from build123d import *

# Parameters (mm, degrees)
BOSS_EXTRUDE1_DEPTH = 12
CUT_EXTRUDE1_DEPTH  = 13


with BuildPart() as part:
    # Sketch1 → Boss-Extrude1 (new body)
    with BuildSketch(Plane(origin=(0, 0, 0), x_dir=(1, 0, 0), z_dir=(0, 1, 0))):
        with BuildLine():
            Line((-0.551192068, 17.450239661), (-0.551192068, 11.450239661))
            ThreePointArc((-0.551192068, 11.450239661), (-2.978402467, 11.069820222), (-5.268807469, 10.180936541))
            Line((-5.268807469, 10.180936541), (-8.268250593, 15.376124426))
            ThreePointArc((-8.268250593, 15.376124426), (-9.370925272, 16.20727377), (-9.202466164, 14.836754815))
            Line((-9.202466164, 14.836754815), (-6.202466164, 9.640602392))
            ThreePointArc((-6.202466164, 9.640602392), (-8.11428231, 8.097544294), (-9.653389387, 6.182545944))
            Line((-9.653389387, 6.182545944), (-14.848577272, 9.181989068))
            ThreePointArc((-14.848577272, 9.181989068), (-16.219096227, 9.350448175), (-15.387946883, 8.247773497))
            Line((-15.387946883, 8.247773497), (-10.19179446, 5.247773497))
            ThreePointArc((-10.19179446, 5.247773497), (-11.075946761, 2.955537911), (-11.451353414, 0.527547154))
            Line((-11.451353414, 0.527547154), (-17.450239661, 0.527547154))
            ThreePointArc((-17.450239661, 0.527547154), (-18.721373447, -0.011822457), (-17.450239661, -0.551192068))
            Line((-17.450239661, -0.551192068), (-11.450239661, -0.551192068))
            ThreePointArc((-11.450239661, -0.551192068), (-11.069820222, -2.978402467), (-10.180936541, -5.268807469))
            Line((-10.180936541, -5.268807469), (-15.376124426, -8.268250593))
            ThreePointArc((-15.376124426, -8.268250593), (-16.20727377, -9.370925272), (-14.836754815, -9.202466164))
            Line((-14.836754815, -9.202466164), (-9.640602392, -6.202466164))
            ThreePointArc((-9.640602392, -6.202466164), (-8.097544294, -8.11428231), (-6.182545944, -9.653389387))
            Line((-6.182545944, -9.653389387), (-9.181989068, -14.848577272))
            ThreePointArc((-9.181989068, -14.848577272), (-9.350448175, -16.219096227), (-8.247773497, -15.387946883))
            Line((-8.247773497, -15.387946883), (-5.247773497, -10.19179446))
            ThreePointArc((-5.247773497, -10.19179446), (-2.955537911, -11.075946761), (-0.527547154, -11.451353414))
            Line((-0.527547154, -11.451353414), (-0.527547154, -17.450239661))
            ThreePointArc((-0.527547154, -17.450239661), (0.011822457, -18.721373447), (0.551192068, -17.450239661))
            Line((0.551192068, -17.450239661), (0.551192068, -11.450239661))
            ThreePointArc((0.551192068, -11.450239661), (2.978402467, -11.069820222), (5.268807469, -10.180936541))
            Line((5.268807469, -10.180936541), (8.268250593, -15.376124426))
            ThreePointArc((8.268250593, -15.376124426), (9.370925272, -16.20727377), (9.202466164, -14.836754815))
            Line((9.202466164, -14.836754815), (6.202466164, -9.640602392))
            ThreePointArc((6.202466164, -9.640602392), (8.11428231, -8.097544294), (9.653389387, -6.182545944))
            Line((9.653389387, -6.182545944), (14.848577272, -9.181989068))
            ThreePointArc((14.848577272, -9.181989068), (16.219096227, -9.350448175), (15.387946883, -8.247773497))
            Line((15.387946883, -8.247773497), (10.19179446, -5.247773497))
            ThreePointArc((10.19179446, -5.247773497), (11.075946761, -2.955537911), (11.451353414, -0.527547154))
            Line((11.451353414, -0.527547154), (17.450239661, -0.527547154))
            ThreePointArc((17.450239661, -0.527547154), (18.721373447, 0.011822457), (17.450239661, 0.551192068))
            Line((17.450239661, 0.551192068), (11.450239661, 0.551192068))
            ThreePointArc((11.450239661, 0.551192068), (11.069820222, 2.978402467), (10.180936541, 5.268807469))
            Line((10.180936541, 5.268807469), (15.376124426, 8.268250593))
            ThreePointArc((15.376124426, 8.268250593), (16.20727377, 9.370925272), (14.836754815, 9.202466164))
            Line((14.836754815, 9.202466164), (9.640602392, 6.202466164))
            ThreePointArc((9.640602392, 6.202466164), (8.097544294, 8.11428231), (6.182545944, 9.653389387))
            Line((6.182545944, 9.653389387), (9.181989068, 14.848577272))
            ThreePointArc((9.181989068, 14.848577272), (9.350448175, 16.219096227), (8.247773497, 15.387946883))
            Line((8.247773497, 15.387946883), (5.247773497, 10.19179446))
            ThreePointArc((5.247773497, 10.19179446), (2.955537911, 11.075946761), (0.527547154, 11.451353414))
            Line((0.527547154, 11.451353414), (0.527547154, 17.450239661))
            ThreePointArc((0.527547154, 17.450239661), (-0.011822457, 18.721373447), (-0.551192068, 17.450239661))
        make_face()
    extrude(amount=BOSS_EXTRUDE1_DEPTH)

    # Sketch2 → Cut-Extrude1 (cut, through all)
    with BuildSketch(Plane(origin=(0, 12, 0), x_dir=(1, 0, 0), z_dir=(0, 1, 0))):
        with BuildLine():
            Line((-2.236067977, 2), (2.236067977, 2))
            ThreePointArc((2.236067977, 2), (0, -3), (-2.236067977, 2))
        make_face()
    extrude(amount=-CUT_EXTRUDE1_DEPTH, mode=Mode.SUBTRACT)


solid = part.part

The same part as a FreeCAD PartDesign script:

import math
import FreeCAD as App
import Part
import Sketcher

V = App.Vector
Q = App.Units.Quantity

doc = App.newDocument("Part")
body = doc.addObject("PartDesign::Body", "Body")

# Sketch on XZ plane
sketch1 = body.newObject("Sketcher::SketchObject", "Sketch")
sketch1.AttachmentSupport = (doc.getObject("XZ_Plane"), [""])
sketch1.MapMode = "FlatFace"
sketch1.addGeometry(Part.LineSegment(V(-0.6, -17.5, 0), V(-0.6, -11.5, 0)), False)
sketch1.addGeometry(Part.ArcOfCircle(Part.Circle(V(0, 0, 0), V(0, 0, 1), 11.5), math.radians(-117), math.radians(-93)), False)
sketch1.addGeometry(Part.LineSegment(V(-5.3, -10.2, 0), V(-8.3, -15.4, 0)), False)
sketch1.addGeometry(Part.ArcOfCircle(Part.Circle(V(-9, -15.6, 0), V(0, 0, 1), 0.8), math.radians(106), math.radians(374)), False)
sketch1.addGeometry(Part.LineSegment(V(-9.2, -14.8, 0), V(-6.2, -9.6, 0)), False)
sketch1.addGeometry(Part.ArcOfCircle(Part.Circle(V(0, 0, 0), V(0, 0, 1), 11.5), math.radians(-147), math.radians(-123)), False)
sketch1.addGeometry(Part.LineSegment(V(-9.7, -6.2, 0), V(-14.8, -9.2, 0)), False)
sketch1.addGeometry(Part.ArcOfCircle(Part.Circle(V(-15.6, -9, 0), V(0, 0, 1), 0.8), math.radians(76), math.radians(344)), False)
sketch1.addGeometry(Part.LineSegment(V(-15.4, -8.2, 0), V(-10.2, -5.2, 0)), False)
sketch1.addGeometry(Part.ArcOfCircle(Part.Circle(V(0, 0, 0), V(0, 0, 1), 11.5), math.radians(-177), math.radians(-153)), False)
sketch1.addGeometry(Part.LineSegment(V(-11.5, -0.5, 0), V(-17.5, -0.5, 0)), False)
sketch1.addGeometry(Part.ArcOfCircle(Part.Circle(V(-18, 0, 0), V(0, 0, 1), 0.8), math.radians(46), math.radians(314)), False)
sketch1.addGeometry(Part.LineSegment(V(-17.5, 0.6, 0), V(-11.5, 0.6, 0)), False)
sketch1.addGeometry(Part.ArcOfCircle(Part.Circle(V(0, 0, 0), V(0, 0, 1), 11.5), math.radians(153), math.radians(177)), False)
sketch1.addGeometry(Part.LineSegment(V(-10.2, 5.3, 0), V(-15.4, 8.3, 0)), False)
sketch1.addGeometry(Part.ArcOfCircle(Part.Circle(V(-15.6, 9, 0), V(0, 0, 1), 0.8), math.radians(16), math.radians(284)), False)
sketch1.addGeometry(Part.LineSegment(V(-14.8, 9.2, 0), V(-9.6, 6.2, 0)), False)
sketch1.addGeometry(Part.ArcOfCircle(Part.Circle(V(0, 0, 0), V(0, 0, 1), 11.5), math.radians(123), math.radians(147)), False)
sketch1.addGeometry(Part.LineSegment(V(-6.2, 9.7, 0), V(-9.2, 14.8, 0)), False)
sketch1.addGeometry(Part.ArcOfCircle(Part.Circle(V(-9, 15.6, 0), V(0, 0, 1), 0.8), math.radians(-14), math.radians(254)), False)
sketch1.addGeometry(Part.LineSegment(V(-8.2, 15.4, 0), V(-5.2, 10.2, 0)), False)
sketch1.addGeometry(Part.ArcOfCircle(Part.Circle(V(0, 0, 0), V(0, 0, 1), 11.5), math.radians(93), math.radians(117)), False)
sketch1.addGeometry(Part.LineSegment(V(-0.5, 11.5, 0), V(-0.5, 17.5, 0)), False)
sketch1.addGeometry(Part.ArcOfCircle(Part.Circle(V(0, 18, 0), V(0, 0, 1), 0.8), math.radians(-44), math.radians(224)), False)
sketch1.addGeometry(Part.LineSegment(V(0.6, 17.5, 0), V(0.6, 11.5, 0)), False)
sketch1.addGeometry(Part.ArcOfCircle(Part.Circle(V(0, 0, 0), V(0, 0, 1), 11.5), math.radians(63), math.radians(87)), False)
sketch1.addGeometry(Part.LineSegment(V(5.3, 10.2, 0), V(8.3, 15.4, 0)), False)
sketch1.addGeometry(Part.ArcOfCircle(Part.Circle(V(9, 15.6, 0), V(0, 0, 1), 0.8), math.radians(-74), math.radians(194)), False)
sketch1.addGeometry(Part.LineSegment(V(9.2, 14.8, 0), V(6.2, 9.6, 0)), False)
sketch1.addGeometry(Part.ArcOfCircle(Part.Circle(V(0, 0, 0), V(0, 0, 1), 11.5), math.radians(33), math.radians(57)), False)
sketch1.addGeometry(Part.LineSegment(V(9.7, 6.2, 0), V(14.8, 9.2, 0)), False)
sketch1.addGeometry(Part.ArcOfCircle(Part.Circle(V(15.6, 9, 0), V(0, 0, 1), 0.8), math.radians(-104), math.radians(164)), False)
sketch1.addGeometry(Part.LineSegment(V(15.4, 8.2, 0), V(10.2, 5.2, 0)), False)
sketch1.addGeometry(Part.ArcOfCircle(Part.Circle(V(0, 0, 0), V(0, 0, 1), 11.5), math.radians(3), math.radians(27)), False)
sketch1.addGeometry(Part.LineSegment(V(11.5, 0.5, 0), V(17.5, 0.5, 0)), False)
sketch1.addGeometry(Part.ArcOfCircle(Part.Circle(V(18, 0, 0), V(0, 0, 1), 0.8), math.radians(-134), math.radians(134)), False)
sketch1.addGeometry(Part.LineSegment(V(17.5, -0.6, 0), V(11.5, -0.6, 0)), False)
sketch1.addGeometry(Part.ArcOfCircle(Part.Circle(V(0, 0, 0), V(0, 0, 1), 11.5), math.radians(-27), math.radians(-3)), False)
sketch1.addGeometry(Part.LineSegment(V(10.2, -5.3, 0), V(15.4, -8.3, 0)), False)
sketch1.addGeometry(Part.ArcOfCircle(Part.Circle(V(15.6, -9, 0), V(0, 0, 1), 0.8), math.radians(-164), math.radians(104)), False)
sketch1.addGeometry(Part.LineSegment(V(14.8, -9.2, 0), V(9.6, -6.2, 0)), False)
sketch1.addGeometry(Part.ArcOfCircle(Part.Circle(V(0, 0, 0), V(0, 0, 1), 11.5), math.radians(-57), math.radians(-33)), False)
sketch1.addGeometry(Part.LineSegment(V(6.2, -9.7, 0), V(9.2, -14.8, 0)), False)
sketch1.addGeometry(Part.ArcOfCircle(Part.Circle(V(9, -15.6, 0), V(0, 0, 1), 0.8), math.radians(166), math.radians(434)), False)
sketch1.addGeometry(Part.LineSegment(V(8.2, -15.4, 0), V(5.2, -10.2, 0)), False)
sketch1.addGeometry(Part.ArcOfCircle(Part.Circle(V(0, 0, 0), V(0, 0, 1), 11.5), math.radians(-87), math.radians(-63)), False)
sketch1.addGeometry(Part.LineSegment(V(0.5, -11.5, 0), V(0.5, -17.5, 0)), False)
sketch1.addGeometry(Part.ArcOfCircle(Part.Circle(V(0, -18, 0), V(0, 0, 1), 0.8), math.radians(136), math.radians(404)), False)
sketch1.addConstraint(Sketcher.Constraint("Coincident", 0, 2, 1, 2))
sketch1.addConstraint(Sketcher.Constraint("Coincident", 1, 1, 2, 1))
sketch1.addConstraint(Sketcher.Constraint("Coincident", 2, 2, 3, 2))
sketch1.addConstraint(Sketcher.Constraint("Coincident", 3, 1, 4, 1))
sketch1.addConstraint(Sketcher.Constraint("Coincident", 4, 2, 5, 2))
sketch1.addConstraint(Sketcher.Constraint("Coincident", 5, 1, 6, 1))
sketch1.addConstraint(Sketcher.Constraint("Coincident", 6, 2, 7, 2))
sketch1.addConstraint(Sketcher.Constraint("Coincident", 7, 1, 8, 1))
sketch1.addConstraint(Sketcher.Constraint("Coincident", 8, 2, 9, 2))
sketch1.addConstraint(Sketcher.Constraint("Coincident", 9, 1, 10, 1))
sketch1.addConstraint(Sketcher.Constraint("Coincident", 10, 2, 11, 2))
sketch1.addConstraint(Sketcher.Constraint("Coincident", 11, 1, 12, 1))
sketch1.addConstraint(Sketcher.Constraint("Coincident", 12, 2, 13, 2))
sketch1.addConstraint(Sketcher.Constraint("Coincident", 13, 1, 14, 1))
sketch1.addConstraint(Sketcher.Constraint("Coincident", 14, 2, 15, 2))
sketch1.addConstraint(Sketcher.Constraint("Coincident", 15, 1, 16, 1))
sketch1.addConstraint(Sketcher.Constraint("Coincident", 16, 2, 17, 2))
sketch1.addConstraint(Sketcher.Constraint("Coincident", 17, 1, 18, 1))
sketch1.addConstraint(Sketcher.Constraint("Coincident", 18, 2, 19, 2))
sketch1.addConstraint(Sketcher.Constraint("Coincident", 19, 1, 20, 1))
sketch1.addConstraint(Sketcher.Constraint("Coincident", 20, 2, 21, 2))
sketch1.addConstraint(Sketcher.Constraint("Coincident", 21, 1, 22, 1))
sketch1.addConstraint(Sketcher.Constraint("Coincident", 22, 2, 23, 2))
sketch1.addConstraint(Sketcher.Constraint("Coincident", 23, 1, 24, 1))
sketch1.addConstraint(Sketcher.Constraint("Coincident", 24, 2, 25, 2))
sketch1.addConstraint(Sketcher.Constraint("Coincident", 25, 1, 26, 1))
sketch1.addConstraint(Sketcher.Constraint("Coincident", 26, 2, 27, 2))
sketch1.addConstraint(Sketcher.Constraint("Coincident", 27, 1, 28, 1))
sketch1.addConstraint(Sketcher.Constraint("Coincident", 28, 2, 29, 2))
sketch1.addConstraint(Sketcher.Constraint("Coincident", 29, 1, 30, 1))
sketch1.addConstraint(Sketcher.Constraint("Coincident", 30, 2, 31, 2))
sketch1.addConstraint(Sketcher.Constraint("Coincident", 31, 1, 32, 1))
sketch1.addConstraint(Sketcher.Constraint("Coincident", 32, 2, 33, 2))
sketch1.addConstraint(Sketcher.Constraint("Coincident", 33, 1, 34, 1))
sketch1.addConstraint(Sketcher.Constraint("Coincident", 34, 2, 35, 2))
sketch1.addConstraint(Sketcher.Constraint("Coincident", 35, 1, 36, 1))
sketch1.addConstraint(Sketcher.Constraint("Coincident", 36, 2, 37, 2))
sketch1.addConstraint(Sketcher.Constraint("Coincident", 37, 1, 38, 1))
sketch1.addConstraint(Sketcher.Constraint("Coincident", 38, 2, 39, 2))
sketch1.addConstraint(Sketcher.Constraint("Coincident", 39, 1, 40, 1))
sketch1.addConstraint(Sketcher.Constraint("Coincident", 40, 2, 41, 2))
sketch1.addConstraint(Sketcher.Constraint("Coincident", 41, 1, 42, 1))
sketch1.addConstraint(Sketcher.Constraint("Coincident", 42, 2, 43, 2))
sketch1.addConstraint(Sketcher.Constraint("Coincident", 43, 1, 44, 1))
sketch1.addConstraint(Sketcher.Constraint("Coincident", 44, 2, 45, 2))
sketch1.addConstraint(Sketcher.Constraint("Coincident", 45, 1, 46, 1))
sketch1.addConstraint(Sketcher.Constraint("Coincident", 46, 2, 47, 2))
sketch1.addConstraint(Sketcher.Constraint("Coincident", 47, 1, 0, 1))
sketch1.addConstraint(Sketcher.Constraint("Vertical", 0))
sketch1.addConstraint(Sketcher.Constraint("Horizontal", 10))
sketch1.addConstraint(Sketcher.Constraint("Horizontal", 12))
sketch1.addConstraint(Sketcher.Constraint("Vertical", 22))
sketch1.addConstraint(Sketcher.Constraint("Vertical", 24))
sketch1.addConstraint(Sketcher.Constraint("Horizontal", 34))
sketch1.addConstraint(Sketcher.Constraint("Horizontal", 36))
sketch1.addConstraint(Sketcher.Constraint("Vertical", 46))
sketch1.addConstraint(Sketcher.Constraint("Coincident", 1, 3, -1, 1))
sketch1.addConstraint(Sketcher.Constraint("Coincident", 5, 3, -1, 1))
sketch1.addConstraint(Sketcher.Constraint("Coincident", 9, 3, -1, 1))
sketch1.addConstraint(Sketcher.Constraint("Coincident", 13, 3, -1, 1))
sketch1.addConstraint(Sketcher.Constraint("Coincident", 17, 3, -1, 1))
sketch1.addConstraint(Sketcher.Constraint("Coincident", 21, 3, -1, 1))
sketch1.addConstraint(Sketcher.Constraint("Coincident", 25, 3, -1, 1))
sketch1.addConstraint(Sketcher.Constraint("Coincident", 29, 3, -1, 1))
sketch1.addConstraint(Sketcher.Constraint("Coincident", 33, 3, -1, 1))
sketch1.addConstraint(Sketcher.Constraint("Coincident", 37, 3, -1, 1))
sketch1.addConstraint(Sketcher.Constraint("Coincident", 41, 3, -1, 1))
sketch1.addConstraint(Sketcher.Constraint("Coincident", 45, 3, -1, 1))
sketch1.addConstraint(Sketcher.Constraint("Equal", 1, 5))
sketch1.addConstraint(Sketcher.Constraint("Equal", 3, 7))
sketch1.addConstraint(Sketcher.Constraint("Equal", 5, 9))
sketch1.addConstraint(Sketcher.Constraint("Equal", 7, 11))
sketch1.addConstraint(Sketcher.Constraint("Equal", 9, 13))
sketch1.addConstraint(Sketcher.Constraint("Equal", 11, 15))
sketch1.addConstraint(Sketcher.Constraint("Equal", 13, 17))
sketch1.addConstraint(Sketcher.Constraint("Equal", 15, 19))
sketch1.addConstraint(Sketcher.Constraint("Equal", 17, 21))
sketch1.addConstraint(Sketcher.Constraint("Equal", 19, 23))
sketch1.addConstraint(Sketcher.Constraint("Equal", 21, 25))
sketch1.addConstraint(Sketcher.Constraint("Equal", 23, 27))
sketch1.addConstraint(Sketcher.Constraint("Equal", 25, 29))
sketch1.addConstraint(Sketcher.Constraint("Equal", 27, 31))
sketch1.addConstraint(Sketcher.Constraint("Equal", 29, 33))
sketch1.addConstraint(Sketcher.Constraint("Equal", 31, 35))
sketch1.addConstraint(Sketcher.Constraint("Equal", 33, 37))
sketch1.addConstraint(Sketcher.Constraint("Equal", 35, 39))
sketch1.addConstraint(Sketcher.Constraint("Equal", 37, 41))
sketch1.addConstraint(Sketcher.Constraint("Equal", 39, 43))
sketch1.addConstraint(Sketcher.Constraint("Equal", 41, 45))
sketch1.addConstraint(Sketcher.Constraint("Equal", 43, 47))
sketch1.addConstraint(Sketcher.Constraint("Symmetric", 3, 3, 27, 3, -1, 1))
sketch1.addConstraint(Sketcher.Constraint("Symmetric", 7, 3, 31, 3, -1, 1))
sketch1.addConstraint(Sketcher.Constraint("Symmetric", 11, 3, 35, 3, -1, 1))
sketch1.addConstraint(Sketcher.Constraint("Symmetric", 15, 3, 39, 3, -1, 1))
sketch1.addConstraint(Sketcher.Constraint("Symmetric", 19, 3, 43, 3, -1, 1))
sketch1.addConstraint(Sketcher.Constraint("Symmetric", 23, 3, 47, 3, -1, 1))
sketch1.addConstraint(Sketcher.Constraint("Parallel", 2, 4))
sketch1.addConstraint(Sketcher.Constraint("Parallel", 6, 8))
sketch1.addConstraint(Sketcher.Constraint("Perpendicular", 4, 14))
sketch1.addConstraint(Sketcher.Constraint("Parallel", 14, 16))
sketch1.addConstraint(Sketcher.Constraint("Perpendicular", 8, 18))
sketch1.addConstraint(Sketcher.Constraint("Parallel", 18, 20))
sketch1.addConstraint(Sketcher.Constraint("Perpendicular", 16, 26))
sketch1.addConstraint(Sketcher.Constraint("Parallel", 26, 28))
sketch1.addConstraint(Sketcher.Constraint("Perpendicular", 20, 30))
sketch1.addConstraint(Sketcher.Constraint("Parallel", 30, 32))
sketch1.addConstraint(Sketcher.Constraint("Perpendicular", 28, 38))
sketch1.addConstraint(Sketcher.Constraint("Parallel", 38, 40))
sketch1.addConstraint(Sketcher.Constraint("Perpendicular", 32, 42))
sketch1.addConstraint(Sketcher.Constraint("Parallel", 42, 44))
sketch1.addConstraint(Sketcher.Constraint("Horizontal", 22, 2, 23, 1))
sketch1.addConstraint(Sketcher.Constraint("Horizontal", 46, 2, 47, 1))
sketch1.addConstraint(Sketcher.Constraint("Vertical", 10, 2, 11, 1))
sketch1.addConstraint(Sketcher.Constraint("Vertical", 34, 2, 35, 1))
sketch1.addConstraint(Sketcher.Constraint("Equal", 10, 34))
sketch1.addConstraint(Sketcher.Constraint("Equal", 36, 0))
sketch1.addConstraint(Sketcher.Constraint("Equal", 34, 22))
sketch1.addConstraint(Sketcher.Constraint("Equal", 0, 24))
sketch1.addConstraint(Sketcher.Constraint("Equal", 2, 6))
sketch1.addConstraint(Sketcher.Constraint("Equal", 4, 8))
sketch1.addConstraint(Sketcher.Constraint("Equal", 6, 14))
sketch1.addConstraint(Sketcher.Constraint("Equal", 8, 16))
sketch1.addConstraint(Sketcher.Constraint("Equal", 14, 18))
sketch1.addConstraint(Sketcher.Constraint("Equal", 16, 20))
sketch1.addConstraint(Sketcher.Constraint("Equal", 18, 26))
sketch1.addConstraint(Sketcher.Constraint("Equal", 20, 28))
sketch1.addConstraint(Sketcher.Constraint("Equal", 26, 30))
sketch1.addConstraint(Sketcher.Constraint("Equal", 28, 32))
sketch1.addConstraint(Sketcher.Constraint("Equal", 30, 38))
sketch1.addConstraint(Sketcher.Constraint("Equal", 32, 40))
sketch1.addConstraint(Sketcher.Constraint("Equal", 38, 42))
sketch1.addConstraint(Sketcher.Constraint("Equal", 40, 44))
sketch1.addConstraint(Sketcher.Constraint("DistanceX", 12, 1, 12, 2, Q("6 mm")))
sketch1.addConstraint(Sketcher.Constraint("Angle", 2, Q("-120 deg")))
sketch1.addConstraint(Sketcher.Constraint("Angle", 6, Q("-150 deg")))
sketch1.addConstraint(Sketcher.Constraint("Radius", 3, Q("0.75 mm")))
sketch1.addConstraint(Sketcher.Constraint("Distance", 4, Q("6 mm")))
sketch1.addConstraint(Sketcher.Constraint("Radius", 1, Q("11.463499 mm")))
sketch1.addConstraint(Sketcher.Constraint("DistanceX", 10, 2, 10, 1, Q("5.998886 mm")))
sketch1.addConstraint(Sketcher.Constraint("DistanceY", 7, 3, -1, 1, Q("8.975448 mm")))
sketch1.addConstraint(Sketcher.Constraint("DistanceX", 19, 3, -1, 1, Q("8.975448 mm")))
sketch1.addConstraint(Sketcher.Constraint("DistanceY", 0, 2, -1, 1, Q("11.45024 mm")))
sketch1.addConstraint(Sketcher.Constraint("DistanceX", 2, 2, -1, 1, Q("8.268251 mm")))
sketch1.addConstraint(Sketcher.Constraint("DistanceX", 5, 1, -1, 1, Q("9.653389 mm")))
sketch1.addConstraint(Sketcher.Constraint("DistanceY", 6, 2, -1, 1, Q("9.181989 mm")))
sketch1.addConstraint(Sketcher.Constraint("DistanceX", 10, 2, -1, 1, Q("17.45024 mm")))
sketch1.addConstraint(Sketcher.Constraint("DistanceY", -1, 1, 14, 2, Q("8.268251 mm")))
sketch1.addConstraint(Sketcher.Constraint("DistanceY", -1, 1, 17, 1, Q("9.653389 mm")))
sketch1.addConstraint(Sketcher.Constraint("DistanceX", 3, 3, -1, 1, Q("8.995925 mm")))
sketch1.addConstraint(Sketcher.Constraint("DistanceX", 15, 3, -1, 1, Q("15.557755 mm")))
pad1 = body.newObject("PartDesign::Pad", "Pad")
pad1.Profile = sketch1
pad1.Length = 12
pad1.Reversed = True

# Sketch on XZ plane
sketch2 = body.newObject("Sketcher::SketchObject", "Sketch001")
sketch2.AttachmentSupport = (doc.getObject("XZ_Plane"), [""])
sketch2.MapMode = "FlatFace"
sketch2.AttachmentOffset = App.Placement(V(0, 0, -12), App.Rotation())
sketch2.addGeometry(Part.LineSegment(V(2.2, -2, 0), V(-2.2, -2, 0)), False)
sketch2.addGeometry(Part.ArcOfCircle(Part.Circle(V(0, 0, 0), V(0, 0, 1), 3), math.radians(-42), math.radians(222)), False)
sketch2.addConstraint(Sketcher.Constraint("Coincident", 0, 1, 1, 1))
sketch2.addConstraint(Sketcher.Constraint("Coincident", 1, 2, 0, 2))
sketch2.addConstraint(Sketcher.Constraint("Horizontal", 0))
sketch2.addConstraint(Sketcher.Constraint("Coincident", 1, 3, -1, 1))
sketch2.addConstraint(Sketcher.Constraint("Radius", 1, Q("3 mm")))
sketch2.addConstraint(Sketcher.Constraint("DistanceY", 0, 1, -1, 1, Q("2 mm")))
pocket1 = body.newObject("PartDesign::Pocket", "Pocket")
pocket1.Profile = sketch2
pocket1.Type = "ThroughAll"
pocket1.Reversed = True

doc.recompute()
